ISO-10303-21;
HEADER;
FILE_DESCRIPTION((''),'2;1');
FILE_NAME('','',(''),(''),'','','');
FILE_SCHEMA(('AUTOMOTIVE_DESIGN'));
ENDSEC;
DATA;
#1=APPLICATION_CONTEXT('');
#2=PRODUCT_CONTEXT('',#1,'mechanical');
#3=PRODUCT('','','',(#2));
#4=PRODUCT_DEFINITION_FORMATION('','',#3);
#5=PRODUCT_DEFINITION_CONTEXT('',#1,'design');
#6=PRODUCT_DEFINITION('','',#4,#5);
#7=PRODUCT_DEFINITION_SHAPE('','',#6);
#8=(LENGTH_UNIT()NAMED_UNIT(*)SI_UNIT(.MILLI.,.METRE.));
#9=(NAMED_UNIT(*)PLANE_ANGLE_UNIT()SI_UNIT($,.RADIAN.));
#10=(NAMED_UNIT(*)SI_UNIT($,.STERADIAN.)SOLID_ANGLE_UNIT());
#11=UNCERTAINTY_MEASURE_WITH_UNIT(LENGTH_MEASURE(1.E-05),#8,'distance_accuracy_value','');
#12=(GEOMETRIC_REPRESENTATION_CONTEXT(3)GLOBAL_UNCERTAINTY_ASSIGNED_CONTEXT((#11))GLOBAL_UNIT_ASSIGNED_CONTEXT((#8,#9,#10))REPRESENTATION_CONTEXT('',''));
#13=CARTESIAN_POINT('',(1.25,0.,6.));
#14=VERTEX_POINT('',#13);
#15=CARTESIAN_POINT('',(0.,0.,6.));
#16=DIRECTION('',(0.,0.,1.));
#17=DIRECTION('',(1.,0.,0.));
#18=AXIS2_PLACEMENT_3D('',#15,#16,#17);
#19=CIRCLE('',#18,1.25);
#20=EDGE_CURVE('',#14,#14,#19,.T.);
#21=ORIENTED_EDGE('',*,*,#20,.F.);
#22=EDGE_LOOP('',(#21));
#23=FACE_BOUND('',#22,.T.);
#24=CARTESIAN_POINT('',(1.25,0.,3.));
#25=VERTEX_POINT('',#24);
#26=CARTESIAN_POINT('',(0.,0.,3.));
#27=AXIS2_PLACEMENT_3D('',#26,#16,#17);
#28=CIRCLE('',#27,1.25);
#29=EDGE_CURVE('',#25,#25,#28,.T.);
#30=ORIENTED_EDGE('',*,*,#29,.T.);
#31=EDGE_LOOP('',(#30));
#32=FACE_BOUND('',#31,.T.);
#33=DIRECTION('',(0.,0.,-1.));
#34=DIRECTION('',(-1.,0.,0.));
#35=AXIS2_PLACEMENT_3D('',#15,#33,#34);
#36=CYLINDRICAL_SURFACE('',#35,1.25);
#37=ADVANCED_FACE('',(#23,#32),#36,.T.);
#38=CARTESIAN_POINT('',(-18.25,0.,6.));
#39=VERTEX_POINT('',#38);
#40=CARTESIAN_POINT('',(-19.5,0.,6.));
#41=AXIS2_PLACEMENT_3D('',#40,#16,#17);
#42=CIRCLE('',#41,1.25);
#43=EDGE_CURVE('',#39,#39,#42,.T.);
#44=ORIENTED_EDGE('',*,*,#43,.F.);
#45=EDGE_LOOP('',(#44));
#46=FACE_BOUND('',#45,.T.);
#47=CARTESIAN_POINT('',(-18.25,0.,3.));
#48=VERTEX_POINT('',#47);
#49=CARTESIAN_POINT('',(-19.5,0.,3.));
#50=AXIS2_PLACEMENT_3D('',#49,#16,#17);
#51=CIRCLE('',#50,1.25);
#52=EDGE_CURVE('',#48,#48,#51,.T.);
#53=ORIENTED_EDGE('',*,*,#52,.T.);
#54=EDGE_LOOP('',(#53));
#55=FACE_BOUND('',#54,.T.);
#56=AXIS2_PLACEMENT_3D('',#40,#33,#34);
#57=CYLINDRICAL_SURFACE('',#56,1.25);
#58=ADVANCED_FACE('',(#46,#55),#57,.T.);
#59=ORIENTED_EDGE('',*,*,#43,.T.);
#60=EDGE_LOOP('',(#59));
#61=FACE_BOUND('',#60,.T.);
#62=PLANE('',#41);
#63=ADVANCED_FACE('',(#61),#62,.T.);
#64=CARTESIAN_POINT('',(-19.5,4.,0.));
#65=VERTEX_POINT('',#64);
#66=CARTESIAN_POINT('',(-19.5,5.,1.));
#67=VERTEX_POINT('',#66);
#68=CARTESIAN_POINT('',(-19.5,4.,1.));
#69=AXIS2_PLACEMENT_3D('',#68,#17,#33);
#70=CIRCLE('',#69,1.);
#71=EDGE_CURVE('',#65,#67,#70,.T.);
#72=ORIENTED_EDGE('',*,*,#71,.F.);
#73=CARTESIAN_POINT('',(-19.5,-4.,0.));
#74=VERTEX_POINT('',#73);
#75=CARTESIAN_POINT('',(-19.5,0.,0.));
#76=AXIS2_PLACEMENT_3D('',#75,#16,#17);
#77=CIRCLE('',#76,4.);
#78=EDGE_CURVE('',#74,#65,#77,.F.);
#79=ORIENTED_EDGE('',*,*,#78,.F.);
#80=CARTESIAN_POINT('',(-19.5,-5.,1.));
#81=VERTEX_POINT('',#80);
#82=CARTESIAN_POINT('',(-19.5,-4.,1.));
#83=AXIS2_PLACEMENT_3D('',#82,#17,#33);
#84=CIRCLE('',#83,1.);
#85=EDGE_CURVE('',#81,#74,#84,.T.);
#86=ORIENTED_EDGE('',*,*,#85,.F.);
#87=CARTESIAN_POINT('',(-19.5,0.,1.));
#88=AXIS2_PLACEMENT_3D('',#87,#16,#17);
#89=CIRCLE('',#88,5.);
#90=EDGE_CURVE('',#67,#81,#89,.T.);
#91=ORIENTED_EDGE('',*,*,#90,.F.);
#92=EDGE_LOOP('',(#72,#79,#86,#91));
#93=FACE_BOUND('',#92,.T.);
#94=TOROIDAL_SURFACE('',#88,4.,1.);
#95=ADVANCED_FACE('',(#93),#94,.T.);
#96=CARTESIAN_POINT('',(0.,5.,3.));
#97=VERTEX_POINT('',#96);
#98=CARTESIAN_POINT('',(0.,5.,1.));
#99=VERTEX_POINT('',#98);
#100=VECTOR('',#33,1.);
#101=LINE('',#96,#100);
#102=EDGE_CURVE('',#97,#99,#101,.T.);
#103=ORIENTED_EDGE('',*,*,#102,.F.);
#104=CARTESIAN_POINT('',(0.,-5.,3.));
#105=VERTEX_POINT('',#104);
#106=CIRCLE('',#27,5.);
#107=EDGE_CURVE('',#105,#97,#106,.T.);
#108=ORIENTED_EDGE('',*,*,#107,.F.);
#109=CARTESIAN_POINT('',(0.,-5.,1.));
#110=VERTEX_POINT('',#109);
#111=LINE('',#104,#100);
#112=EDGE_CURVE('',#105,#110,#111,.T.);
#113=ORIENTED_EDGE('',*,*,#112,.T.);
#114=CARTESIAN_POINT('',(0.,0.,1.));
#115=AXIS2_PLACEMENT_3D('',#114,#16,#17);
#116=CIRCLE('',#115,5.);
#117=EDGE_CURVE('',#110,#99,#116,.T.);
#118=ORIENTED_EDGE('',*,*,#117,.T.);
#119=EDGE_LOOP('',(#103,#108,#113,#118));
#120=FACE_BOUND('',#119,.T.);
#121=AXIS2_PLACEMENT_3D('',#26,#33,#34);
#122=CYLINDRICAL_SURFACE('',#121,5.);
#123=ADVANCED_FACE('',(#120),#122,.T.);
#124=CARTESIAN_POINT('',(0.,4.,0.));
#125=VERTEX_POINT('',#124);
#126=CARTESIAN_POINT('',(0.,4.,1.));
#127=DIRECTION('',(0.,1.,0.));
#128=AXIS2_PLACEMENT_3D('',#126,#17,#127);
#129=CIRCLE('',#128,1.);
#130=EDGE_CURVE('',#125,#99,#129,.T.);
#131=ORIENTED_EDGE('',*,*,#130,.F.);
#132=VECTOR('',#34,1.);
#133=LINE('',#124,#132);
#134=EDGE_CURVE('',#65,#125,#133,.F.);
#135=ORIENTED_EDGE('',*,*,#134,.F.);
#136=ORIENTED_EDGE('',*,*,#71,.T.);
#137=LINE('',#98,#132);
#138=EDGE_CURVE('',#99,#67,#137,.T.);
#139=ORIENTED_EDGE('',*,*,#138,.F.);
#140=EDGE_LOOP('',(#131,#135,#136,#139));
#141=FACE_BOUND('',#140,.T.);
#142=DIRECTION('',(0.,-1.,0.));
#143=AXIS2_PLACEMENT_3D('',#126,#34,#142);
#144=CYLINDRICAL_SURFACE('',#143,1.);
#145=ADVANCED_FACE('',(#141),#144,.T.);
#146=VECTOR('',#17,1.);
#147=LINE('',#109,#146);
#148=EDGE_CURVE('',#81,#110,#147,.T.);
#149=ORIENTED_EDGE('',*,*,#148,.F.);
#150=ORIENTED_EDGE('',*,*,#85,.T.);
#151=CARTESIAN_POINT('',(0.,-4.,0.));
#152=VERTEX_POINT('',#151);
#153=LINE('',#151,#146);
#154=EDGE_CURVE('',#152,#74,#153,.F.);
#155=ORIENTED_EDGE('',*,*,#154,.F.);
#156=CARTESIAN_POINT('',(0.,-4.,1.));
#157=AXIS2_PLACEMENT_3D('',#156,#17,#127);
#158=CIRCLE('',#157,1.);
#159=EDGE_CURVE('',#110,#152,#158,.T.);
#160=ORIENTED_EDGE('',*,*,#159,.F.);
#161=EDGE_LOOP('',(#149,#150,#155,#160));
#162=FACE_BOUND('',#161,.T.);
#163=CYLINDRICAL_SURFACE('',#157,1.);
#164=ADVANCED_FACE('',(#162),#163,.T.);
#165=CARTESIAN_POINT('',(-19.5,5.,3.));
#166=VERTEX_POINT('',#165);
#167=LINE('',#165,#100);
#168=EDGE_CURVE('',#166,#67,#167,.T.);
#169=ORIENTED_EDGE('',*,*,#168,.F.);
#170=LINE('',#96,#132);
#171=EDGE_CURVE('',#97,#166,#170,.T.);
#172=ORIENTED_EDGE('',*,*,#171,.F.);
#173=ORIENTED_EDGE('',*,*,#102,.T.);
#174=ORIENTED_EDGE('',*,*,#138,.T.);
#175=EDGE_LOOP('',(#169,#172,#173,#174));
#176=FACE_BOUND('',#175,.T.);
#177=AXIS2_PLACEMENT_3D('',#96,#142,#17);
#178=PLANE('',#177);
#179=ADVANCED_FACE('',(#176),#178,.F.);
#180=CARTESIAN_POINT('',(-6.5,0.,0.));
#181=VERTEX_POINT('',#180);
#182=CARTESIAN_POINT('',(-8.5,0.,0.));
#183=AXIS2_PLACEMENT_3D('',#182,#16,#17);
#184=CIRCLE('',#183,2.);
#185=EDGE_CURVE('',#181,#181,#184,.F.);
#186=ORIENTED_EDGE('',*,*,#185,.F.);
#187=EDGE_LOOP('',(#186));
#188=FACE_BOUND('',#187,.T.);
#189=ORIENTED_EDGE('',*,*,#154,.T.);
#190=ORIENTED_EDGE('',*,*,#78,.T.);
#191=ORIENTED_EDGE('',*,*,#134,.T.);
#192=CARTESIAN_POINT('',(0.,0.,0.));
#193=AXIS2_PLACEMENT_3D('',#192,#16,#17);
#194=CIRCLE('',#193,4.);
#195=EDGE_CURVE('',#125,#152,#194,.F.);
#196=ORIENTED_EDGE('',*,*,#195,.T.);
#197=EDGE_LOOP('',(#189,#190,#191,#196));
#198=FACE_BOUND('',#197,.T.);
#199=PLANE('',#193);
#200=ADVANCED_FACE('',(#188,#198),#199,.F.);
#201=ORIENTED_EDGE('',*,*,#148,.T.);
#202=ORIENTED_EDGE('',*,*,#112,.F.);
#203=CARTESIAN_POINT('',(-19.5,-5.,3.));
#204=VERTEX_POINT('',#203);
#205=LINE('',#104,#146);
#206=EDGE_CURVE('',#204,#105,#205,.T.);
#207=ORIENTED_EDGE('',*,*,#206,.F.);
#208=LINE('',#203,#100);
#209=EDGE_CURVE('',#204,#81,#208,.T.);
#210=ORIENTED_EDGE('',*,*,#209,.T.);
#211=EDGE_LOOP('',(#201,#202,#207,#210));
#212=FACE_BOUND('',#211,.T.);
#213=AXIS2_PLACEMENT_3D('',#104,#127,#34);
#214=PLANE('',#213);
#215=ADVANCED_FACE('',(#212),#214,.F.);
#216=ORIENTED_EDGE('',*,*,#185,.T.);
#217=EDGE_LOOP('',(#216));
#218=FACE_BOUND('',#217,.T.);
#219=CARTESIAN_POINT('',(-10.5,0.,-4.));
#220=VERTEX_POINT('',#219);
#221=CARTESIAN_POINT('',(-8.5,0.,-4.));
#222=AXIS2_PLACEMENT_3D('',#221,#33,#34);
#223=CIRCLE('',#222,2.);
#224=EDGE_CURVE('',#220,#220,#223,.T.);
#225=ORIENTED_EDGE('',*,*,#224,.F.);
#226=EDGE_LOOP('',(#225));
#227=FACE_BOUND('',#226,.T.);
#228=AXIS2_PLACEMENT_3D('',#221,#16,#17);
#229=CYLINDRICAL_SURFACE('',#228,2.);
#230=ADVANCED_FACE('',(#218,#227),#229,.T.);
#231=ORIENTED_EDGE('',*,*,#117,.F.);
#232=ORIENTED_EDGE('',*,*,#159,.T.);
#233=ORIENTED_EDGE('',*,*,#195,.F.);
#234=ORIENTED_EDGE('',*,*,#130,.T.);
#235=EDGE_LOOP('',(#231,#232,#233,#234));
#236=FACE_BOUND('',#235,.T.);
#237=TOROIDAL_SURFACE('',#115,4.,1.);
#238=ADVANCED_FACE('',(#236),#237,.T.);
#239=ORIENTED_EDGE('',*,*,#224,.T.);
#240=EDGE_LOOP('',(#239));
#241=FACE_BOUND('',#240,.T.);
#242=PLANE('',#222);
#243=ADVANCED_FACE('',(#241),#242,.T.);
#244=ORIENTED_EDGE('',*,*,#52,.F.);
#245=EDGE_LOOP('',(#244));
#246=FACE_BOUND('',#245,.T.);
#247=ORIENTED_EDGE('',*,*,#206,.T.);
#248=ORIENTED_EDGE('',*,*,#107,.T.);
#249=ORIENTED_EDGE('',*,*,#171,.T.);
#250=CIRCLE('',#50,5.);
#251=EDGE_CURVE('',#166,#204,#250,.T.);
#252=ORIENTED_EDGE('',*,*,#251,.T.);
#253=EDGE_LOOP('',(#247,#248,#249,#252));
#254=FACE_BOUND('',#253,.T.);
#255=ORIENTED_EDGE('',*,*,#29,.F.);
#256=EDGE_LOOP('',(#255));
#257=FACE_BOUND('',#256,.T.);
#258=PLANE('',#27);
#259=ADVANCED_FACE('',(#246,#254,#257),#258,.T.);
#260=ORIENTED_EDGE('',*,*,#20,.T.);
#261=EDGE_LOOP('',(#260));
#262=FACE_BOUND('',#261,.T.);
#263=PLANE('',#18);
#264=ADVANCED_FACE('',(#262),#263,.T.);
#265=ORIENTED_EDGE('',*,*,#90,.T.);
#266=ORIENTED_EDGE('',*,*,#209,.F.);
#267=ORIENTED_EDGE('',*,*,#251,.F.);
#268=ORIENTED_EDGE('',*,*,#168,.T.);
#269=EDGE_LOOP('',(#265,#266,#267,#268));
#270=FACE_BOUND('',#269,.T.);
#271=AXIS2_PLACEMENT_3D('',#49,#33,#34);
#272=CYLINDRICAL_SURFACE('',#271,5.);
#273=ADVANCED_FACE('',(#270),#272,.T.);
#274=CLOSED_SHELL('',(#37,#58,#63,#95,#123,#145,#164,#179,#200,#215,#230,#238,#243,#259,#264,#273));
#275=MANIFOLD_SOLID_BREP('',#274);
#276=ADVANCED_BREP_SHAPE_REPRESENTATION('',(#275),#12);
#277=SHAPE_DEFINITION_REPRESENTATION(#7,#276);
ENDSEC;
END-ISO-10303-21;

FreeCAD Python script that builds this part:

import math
import FreeCAD as App
import Part
import Sketcher

V = App.Vector


def edges_at(feature, points):
    """Names of the edges that pass closest to the given points."""
    edges = feature.Shape.Edges
    near = lambda p: min(range(len(edges)), key=lambda i: edges[i].distToShape(Part.Vertex(*p))[0])
    return sorted({f"Edge{near(p) + 1}" for p in points})

doc = App.newDocument("Part")
body = doc.addObject("PartDesign::Body", "Body")

sketch1 = body.newObject("Sketcher::SketchObject", "Sketch")
sketch1.AttachmentSupport = (doc.getObject("XY_Plane"), [""])
sketch1.MapMode = "FlatFace"
sketch1.addGeometry(Part.LineSegment(V(-19.5, -5, 0), V(0, -5, 0)), False)
sketch1.addGeometry(Part.ArcOfCircle(Part.Circle(V(0, 0, 0), V(0, 0, 1), 5), math.radians(-90), math.radians(90)), False)
sketch1.addGeometry(Part.LineSegment(V(0, 5, 0), V(-19.5, 5, 0)), False)
sketch1.addGeometry(Part.ArcOfCircle(Part.Circle(V(-19.5, 0, 0), V(0, 0, 1), 5), math.radians(90), math.radians(270)), False)
sketch1.addConstraint(Sketcher.Constraint("Tangent", 0, 2, 1, 1))
sketch1.addConstraint(Sketcher.Constraint("Tangent", 1, 2, 2, 1))
sketch1.addConstraint(Sketcher.Constraint("Tangent", 2, 2, 3, 1))
sketch1.addConstraint(Sketcher.Constraint("Tangent", 3, 2, 0, 1))
sketch1.addConstraint(Sketcher.Constraint("Horizontal", 0))
sketch1.addConstraint(Sketcher.Constraint("Horizontal", 2))
sketch1.addConstraint(Sketcher.Constraint("Coincident", 1, 3, -1, 1))
sketch1.addConstraint(Sketcher.Constraint("Radius", 1, 5.0))
sketch1.addConstraint(Sketcher.Constraint("DistanceX", 0, 1, 0, 2, 19.5))
pad1 = body.newObject("PartDesign::Pad", "Pad")
pad1.Profile = sketch1
pad1.Length = 3

sketch2 = body.newObject("Sketcher::SketchObject", "Sketch001")
sketch2.AttachmentSupport = (doc.getObject("XY_Plane"), [""])
sketch2.MapMode = "FlatFace"
sketch2.AttachmentOffset = App.Placement(V(0, 0, 3), App.Rotation())
sketch2.addGeometry(Part.Circle(V(-19.5, 0, 0), V(0, 0, 1), 1.25), False)
sketch2.addGeometry(Part.Circle(V(0, 0, 0), V(0, 0, 1), 1.25), False)
sketch2.addConstraint(Sketcher.Constraint("Coincident", 1, 3, -1, 1))
sketch2.addConstraint(Sketcher.Constraint("Equal", 0, 1))
sketch2.addConstraint(Sketcher.Constraint("PointOnObject", 0, 3, -1))
sketch2.addConstraint(Sketcher.Constraint("Diameter", 0, 2.5))
sketch2.addConstraint(Sketcher.Constraint("DistanceX", 0, 3, -1, 1, 19.5))
pad2 = body.newObject("PartDesign::Pad", "Pad001")
pad2.Profile = sketch2
pad2.Length = 3

sketch3 = body.newObject("Sketcher::SketchObject", "Sketch002")
sketch3.AttachmentSupport = (doc.getObject("XY_Plane"), [""])
sketch3.MapMode = "FlatFace"
sketch3.addGeometry(Part.Circle(V(-8.5, 0, 0), V(0, 0, 1), 2), False)
sketch3.addConstraint(Sketcher.Constraint("PointOnObject", 0, 3, -1))
sketch3.addConstraint(Sketcher.Constraint("Diameter", 0, 4.0))
sketch3.addConstraint(Sketcher.Constraint("DistanceX", 0, 3, -1, 1, 8.5))
pad3 = body.newObject("PartDesign::Pad", "Pad002")
pad3.Profile = sketch3
pad3.Length = 4
pad3.Reversed = True
doc.recompute()

fillet = body.newObject("PartDesign::Fillet", "Fillet")
fillet.Base = (pad3, edges_at(pad3, [
    (-9.75, -5, 0),
    (-24.5, 0, 0),
    (-9.75, 5, 0),
    (5, 0, 0),
]))
fillet.Radius = 1

doc.recompute()
